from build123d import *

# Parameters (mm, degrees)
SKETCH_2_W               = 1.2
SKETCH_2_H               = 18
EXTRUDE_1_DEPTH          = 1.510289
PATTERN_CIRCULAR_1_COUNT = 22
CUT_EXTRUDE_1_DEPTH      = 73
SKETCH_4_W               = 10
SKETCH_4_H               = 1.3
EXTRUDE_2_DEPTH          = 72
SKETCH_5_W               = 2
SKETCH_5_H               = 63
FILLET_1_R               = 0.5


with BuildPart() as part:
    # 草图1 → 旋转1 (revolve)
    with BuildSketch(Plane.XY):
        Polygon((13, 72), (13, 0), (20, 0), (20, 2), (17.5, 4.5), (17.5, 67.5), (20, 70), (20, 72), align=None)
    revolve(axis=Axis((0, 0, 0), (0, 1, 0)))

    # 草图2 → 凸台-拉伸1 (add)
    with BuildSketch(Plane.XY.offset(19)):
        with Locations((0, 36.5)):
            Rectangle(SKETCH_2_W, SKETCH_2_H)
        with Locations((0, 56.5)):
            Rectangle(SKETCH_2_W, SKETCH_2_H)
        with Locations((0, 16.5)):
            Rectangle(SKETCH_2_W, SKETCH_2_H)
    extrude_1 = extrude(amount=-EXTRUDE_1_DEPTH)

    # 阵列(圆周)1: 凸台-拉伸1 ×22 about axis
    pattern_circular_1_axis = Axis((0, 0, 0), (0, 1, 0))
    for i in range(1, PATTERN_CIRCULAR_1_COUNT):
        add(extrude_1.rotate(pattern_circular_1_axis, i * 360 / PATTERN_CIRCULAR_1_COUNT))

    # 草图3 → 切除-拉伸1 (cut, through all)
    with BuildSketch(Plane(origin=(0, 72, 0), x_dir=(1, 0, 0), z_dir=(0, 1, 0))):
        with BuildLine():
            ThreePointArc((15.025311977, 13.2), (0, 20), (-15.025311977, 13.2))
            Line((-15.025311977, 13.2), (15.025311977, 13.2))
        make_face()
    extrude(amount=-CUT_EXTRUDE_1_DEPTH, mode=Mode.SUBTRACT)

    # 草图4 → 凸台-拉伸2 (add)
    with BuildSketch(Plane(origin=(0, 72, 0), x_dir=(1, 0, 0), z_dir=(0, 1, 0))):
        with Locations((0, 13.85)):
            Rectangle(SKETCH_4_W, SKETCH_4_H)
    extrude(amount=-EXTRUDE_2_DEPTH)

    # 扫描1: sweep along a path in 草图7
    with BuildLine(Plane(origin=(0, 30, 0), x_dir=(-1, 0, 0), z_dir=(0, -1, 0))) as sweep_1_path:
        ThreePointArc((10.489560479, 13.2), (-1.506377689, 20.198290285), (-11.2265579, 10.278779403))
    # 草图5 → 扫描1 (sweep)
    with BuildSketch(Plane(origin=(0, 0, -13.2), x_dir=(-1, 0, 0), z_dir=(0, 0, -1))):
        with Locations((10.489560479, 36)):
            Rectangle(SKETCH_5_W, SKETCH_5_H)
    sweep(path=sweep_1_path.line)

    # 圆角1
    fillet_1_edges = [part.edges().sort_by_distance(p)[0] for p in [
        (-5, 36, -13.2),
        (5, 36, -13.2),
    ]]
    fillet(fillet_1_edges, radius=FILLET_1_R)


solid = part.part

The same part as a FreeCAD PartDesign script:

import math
import FreeCAD as App
import Part
import Sketcher
from FreeCAD import Vector


def edges_at(feature, points):
    """Names of the edges that pass closest to the given points."""
    edges = feature.Shape.Edges
    near = lambda p: min(range(len(edges)), key=lambda i: edges[i].distToShape(Part.Vertex(*p))[0])
    return sorted({f"Edge{near(p) + 1}" for p in points})


def add_polygon(sketch, points):
    """Adds a closed chain of lines whose ends are joined by coincident constraints."""
    first, n = sketch.GeometryCount, len(points)
    for a, b in zip(points, points[1:] + points[:1]):
        sketch.addGeometry(Part.LineSegment(App.Vector(*a, 0), App.Vector(*b, 0)), False)
    for i in range(n):
        sketch.addConstraint(Sketcher.Constraint("Coincident", first + i, 2, first + (i + 1) % n, 1))

doc = App.newDocument("Part")
body = doc.addObject("PartDesign::Body", "Body")

sketch1 = doc.addObject("Sketcher::SketchObject", "Sketch")
body.addObject(sketch1)
sketch1.AttachmentSupport = (doc.XY_Plane, [""])
sketch1.MapMode = "FlatFace"
add_polygon(sketch1, [(13, 72), (13, 0), (20, 0), (20, 2), (17.5, 4.5), (17.5, 67.5), (20, 70), (20, 72)])
sketch1.addConstraint([
    Sketcher.Constraint("Vertical", 0),
    Sketcher.Constraint("Horizontal", 1),
    Sketcher.Constraint("Vertical", 2),
    Sketcher.Constraint("Vertical", 4),
    Sketcher.Constraint("Vertical", 6),
    Sketcher.Constraint("Horizontal", 7),
    Sketcher.Constraint("PointOnObject", 0, 2, -1),
    Sketcher.Constraint("Perpendicular", 3, 5),
    Sketcher.Constraint("Vertical", 2, 2, 5, 2),
    Sketcher.Constraint("Equal", 2, 6),
    Sketcher.Constraint("Equal", 3, 5),
    Sketcher.Constraint("DistanceX", 1, 1, 1, 2, 7.0),
    Sketcher.Constraint("DistanceY", 0, 2, 0, 1, 72.0),
    Sketcher.Constraint("DistanceY", 2, 1, 2, 2, 2.0),
    Sketcher.Constraint("DistanceY", 4, 1, 4, 2, 63.0),
    Sketcher.Constraint("DistanceX", -1, 1, 0, 2, 13.0),
])
revolution = doc.addObject("PartDesign::Revolution", "Revolution")
body.addObject(revolution)
revolution.Profile = sketch1
revolution.ReferenceAxis = (sketch1, ["V_Axis"])
revolution.Angle = 360

sketch2 = doc.addObject("Sketcher::SketchObject", "Sketch001")
body.addObject(sketch2)
sketch2.AttachmentSupport = (doc.XY_Plane, [""])
sketch2.MapMode = "FlatFace"
sketch2.AttachmentOffset = App.Placement(Vector(0, 0, 19), App.Rotation())
add_polygon(sketch2, [(-0.6, 45.5), (-0.6, 27.5), (0.6, 27.5), (0.6, 45.5)])
add_polygon(sketch2, [(-0.6, 65.5), (-0.6, 47.5), (0.6, 47.5), (0.6, 65.5)])
add_polygon(sketch2, [(-0.6, 25.5), (-0.6, 7.5), (0.6, 7.5), (0.6, 25.5)])
sketch2.addConstraint([
    Sketcher.Constraint("Vertical", 0),
    Sketcher.Constraint("Horizontal", 1),
    Sketcher.Constraint("Vertical", 2),
    Sketcher.Constraint("Horizontal", 3),
    Sketcher.Constraint("Vertical", 4),
    Sketcher.Constraint("Horizontal", 5),
    Sketcher.Constraint("Vertical", 6),
    Sketcher.Constraint("Horizontal", 7),
    Sketcher.Constraint("Vertical", 8),
    Sketcher.Constraint("Horizontal", 9),
    Sketcher.Constraint("Vertical", 10),
    Sketcher.Constraint("Horizontal", 11),
    Sketcher.Constraint("Vertical", 3, 2, 4, 2),
    Sketcher.Constraint("Vertical", 2, 2, 5, 2),
    Sketcher.Constraint("Vertical", 7, 2, 8, 2),
    Sketcher.Constraint("Vertical", 6, 2, 9, 2),
    Sketcher.Constraint("Equal", 2, 4),
    Sketcher.Constraint("Equal", 6, 8),
    Sketcher.Constraint("DistanceY", 0, 2, 0, 1, 18.0),
    Sketcher.Constraint("DistanceX", 1, 1, 1, 2, 1.2),
    Sketcher.Constraint("DistanceY", 3, 2, 4, 2, 2.0),
    Sketcher.Constraint("DistanceY", 8, 2, 0, 2, 20.0),
    Sketcher.Constraint("DistanceX", 0, 2, -1, 1, 0.6),
    Sketcher.Constraint("DistanceY", -1, 1, 0, 2, 27.5),
])
pad1 = doc.addObject("PartDesign::Pad", "Pad")
body.addObject(pad1)
pad1.Profile = sketch2
pad1.Length = 1.510289
pad1.Reversed = True
doc.recompute()

polarpattern = doc.addObject("PartDesign::PolarPattern", "PolarPattern")
body.addObject(polarpattern)
polarpattern.Originals = [pad1]
polarpattern.Axis = (doc.Y_Axis, [""])
polarpattern.Angle = 360
polarpattern.Occurrences = 22
body.Tip = polarpattern

sketch3 = doc.addObject("Sketcher::SketchObject", "Sketch002")
body.addObject(sketch3)
sketch3.AttachmentSupport = (doc.XZ_Plane, [""])
sketch3.MapMode = "FlatFace"
sketch3.AttachmentOffset = App.Placement(Vector(0, 0, -72), App.Rotation())
sketch3.addGeometry([
    Part.ArcOfCircle(Part.Circle(Vector(0, 0, 0), Vector(0, 0, 1), 20), math.radians(-139), math.radians(-41)),
    Part.LineSegment(Vector(-15, -13, 0), Vector(15, -13, 0)),
], False)
sketch3.addConstraint([
    Sketcher.Constraint("Coincident", 0, 1, 1, 1),
    Sketcher.Constraint("Coincident", 1, 2, 0, 2),
    Sketcher.Constraint("Horizontal", 1),
    Sketcher.Constraint("Coincident", 0, 3, -1, 1),
    Sketcher.Constraint("Radius", 0, 20.0),
    Sketcher.Constraint("DistanceY", 0, 1, -1, 1, 13.2),
])
pocket1 = doc.addObject("PartDesign::Pocket", "Pocket")
body.addObject(pocket1)
pocket1.Profile = sketch3
pocket1.Type = "ThroughAll"
pocket1.Reversed = True

sketch4 = doc.addObject("Sketcher::SketchObject", "Sketch003")
body.addObject(sketch4)
sketch4.AttachmentSupport = (doc.XZ_Plane, [""])
sketch4.MapMode = "FlatFace"
sketch4.AttachmentOffset = App.Placement(Vector(0, 0, -72), App.Rotation())
add_polygon(sketch4, [(-5, -14.5), (-5, -13.2), (5, -13.2), (5, -14.5)])
sketch4.addConstraint([
    Sketcher.Constraint("Vertical", 0),
    Sketcher.Constraint("Horizontal", 1),
    Sketcher.Constraint("Vertical", 2),
    Sketcher.Constraint("Horizontal", 3),
    Sketcher.Constraint("DistanceX", 1, 1, 1, 2, 10.0),
    Sketcher.Constraint("DistanceY", 0, 1, 0, 2, 1.3),
    Sketcher.Constraint("DistanceX", 0, 2, -1, 1, 5.0),
    Sketcher.Constraint("DistanceY", 0, 2, -1, 1, 13.2),
])
pad2 = doc.addObject("PartDesign::Pad", "Pad001")
body.addObject(pad2)
pad2.Profile = sketch4
pad2.Length = 72

sketch5 = doc.addObject("Sketcher::SketchObject", "Sketch004")
body.addObject(sketch5)
sketch5.AttachmentSupport = (doc.XY_Plane, [""])
sketch5.MapMode = "FlatFace"
sketch5.AttachmentOffset = App.Placement(Vector(0, 0, -13.2), App.Rotation())
add_polygon(sketch5, [(-9.5, 67.5), (-9.5, 4.5), (-11.5, 4.5), (-11.5, 67.5)])
sketch5.addConstraint([
    Sketcher.Constraint("Vertical", 0),
    Sketcher.Constraint("Horizontal", 1),
    Sketcher.Constraint("Vertical", 2),
    Sketcher.Constraint("Horizontal", 3),
    Sketcher.Constraint("DistanceX", 1, 2, 1, 1, 2.0),
    Sketcher.Constraint("DistanceY", 0, 2, 0, 1, 63.0),
    Sketcher.Constraint("DistanceY", -1, 1, 0, 2, 4.5),
    Sketcher.Constraint("DistanceX", 0, 2, -1, 1, 9.48956),
])

sketch6 = doc.addObject("Sketcher::SketchObject", "Sketch005")
body.addObject(sketch6)
sketch6.AttachmentSupport = (doc.XZ_Plane, [""])
sketch6.MapMode = "FlatFace"
sketch6.AttachmentOffset = App.Placement(Vector(0, 0, -30), App.Rotation())
sketch6.addGeometry(Part.ArcOfCircle(Part.Circle(Vector(0, -9, 0), Vector(0, 0, 1), 11), math.radians(-158), math.radians(-6)), False)
sketch6.addConstraint([
    Sketcher.Constraint("PointOnObject", 0, 3, -2),
    Sketcher.Constraint("DistanceY", 0, 3, -1, 1, 9.0),
    Sketcher.Constraint("DistanceY", 0, 1, -1, 1, 13.2),
    Sketcher.Constraint("Radius", 0, 11.299154),
    Sketcher.Constraint("DistanceY", 0, 2, -1, 1, 10.278779),
])
doc.recompute()

additivepipe = doc.addObject("PartDesign::AdditivePipe", "AdditivePipe")
body.addObject(additivepipe)
additivepipe.Profile = sketch5
additivepipe.Spine = (sketch6, ["Edge1"])
doc.recompute()

fillet = doc.addObject("PartDesign::Fillet", "Fillet")
body.addObject(fillet)
fillet.Base = (additivepipe, edges_at(additivepipe, [(-5, 36, -13.2), (5, 36, -13.2)]))
fillet.Radius = 0.5

doc.recompute()
